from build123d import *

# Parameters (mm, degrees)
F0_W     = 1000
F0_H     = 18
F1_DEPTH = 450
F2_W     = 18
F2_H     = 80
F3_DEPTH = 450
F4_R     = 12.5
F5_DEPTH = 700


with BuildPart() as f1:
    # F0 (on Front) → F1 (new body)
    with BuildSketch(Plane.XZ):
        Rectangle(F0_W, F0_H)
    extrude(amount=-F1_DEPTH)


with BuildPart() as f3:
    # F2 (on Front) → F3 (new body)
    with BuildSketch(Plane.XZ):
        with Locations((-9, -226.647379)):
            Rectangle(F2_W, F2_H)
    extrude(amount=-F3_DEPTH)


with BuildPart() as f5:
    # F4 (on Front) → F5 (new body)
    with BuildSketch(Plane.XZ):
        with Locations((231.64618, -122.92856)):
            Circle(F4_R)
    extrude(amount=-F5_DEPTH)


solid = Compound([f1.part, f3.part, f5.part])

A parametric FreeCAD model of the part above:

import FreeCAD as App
import Part
import Sketcher


def add_polygon(sketch, points):
    """Adds a closed chain of lines whose ends are joined by coincident constraints."""
    first, n = sketch.GeometryCount, len(points)
    for a, b in zip(points, points[1:] + points[:1]):
        sketch.addGeometry(Part.LineSegment(App.Vector(*a, 0), App.Vector(*b, 0)), False)
    for i in range(n):
        sketch.addConstraint(Sketcher.Constraint("Coincident", first + i, 2, first + (i + 1) % n, 1))

doc = App.newDocument("Part")
body = doc.addObject("PartDesign::Body", "Body")

# Sketch on XZ plane
sketch1 = doc.addObject("Sketcher::SketchObject", "Sketch")
body.addObject(sketch1)
sketch1.AttachmentSupport = (doc.XZ_Plane, [""])
sketch1.MapMode = "FlatFace"
add_polygon(sketch1, [(-500, 9), (-500, -9), (500, -9), (500, 9)])  # lines 0-3
sketch1.addConstraint([
    Sketcher.Constraint("Vertical", 0),
    Sketcher.Constraint("Horizontal", 1),
    Sketcher.Constraint("Vertical", 2),
    Sketcher.Constraint("Horizontal", 3),
    Sketcher.Constraint("Symmetric", 0, 2, 2, 2, -1, 1),
    Sketcher.Constraint("DistanceX", 1, 1, 1, 2, 1000.0),
    Sketcher.Constraint("DistanceY", 0, 2, 0, 1, 18.0),
])
pad1 = doc.addObject("PartDesign::Pad", "Pad")
body.addObject(pad1)
pad1.Profile = sketch1
pad1.Length = 450
pad1.Reversed = True
body2 = doc.addObject("PartDesign::Body", "Body001")

# Sketch on XZ plane
sketch2 = doc.addObject("Sketcher::SketchObject", "Sketch001")
body2.addObject(sketch2)
sketch2.AttachmentSupport = (doc.getObject("XZ_Plane001"), [""])
sketch2.MapMode = "FlatFace"
add_polygon(sketch2, [(-18, -187), (-18, -267), (0, -267), (0, -187)])  # lines 0-3
sketch2.addConstraint([
    Sketcher.Constraint("Vertical", 0),
    Sketcher.Constraint("Horizontal", 1),
    Sketcher.Constraint("Vertical", 2),
    Sketcher.Constraint("Horizontal", 3),
    Sketcher.Constraint("PointOnObject", 1, 2, -2),
    Sketcher.Constraint("DistanceX", 1, 1, 1, 2, 18.0),
    Sketcher.Constraint("DistanceY", 0, 2, 0, 1, 80.0),
    Sketcher.Constraint("DistanceY", 0, 2, -1, 1, 266.647379),
])
pad2 = doc.addObject("PartDesign::Pad", "Pad001")
body2.addObject(pad2)
pad2.Profile = sketch2
pad2.Length = 450
pad2.Reversed = True
body3 = doc.addObject("PartDesign::Body", "Body002")

# Sketch on XZ plane
sketch3 = doc.addObject("Sketcher::SketchObject", "Sketch002")
body3.addObject(sketch3)
sketch3.AttachmentSupport = (doc.getObject("XZ_Plane002"), [""])
sketch3.MapMode = "FlatFace"
sketch3.addGeometry(Part.Circle(App.Vector(232, -123, 0), App.Vector(0, 0, 1), 12), False)
sketch3.addConstraint([
    Sketcher.Constraint("Diameter", 0, 25.0),
    Sketcher.Constraint("DistanceX", -1, 1, 0, 3, 231.64618),
    Sketcher.Constraint("DistanceY", 0, 3, -1, 1, 122.92856),
])
pad3 = doc.addObject("PartDesign::Pad", "Pad002")
body3.addObject(pad3)
pad3.Profile = sketch3
pad3.Length = 700
pad3.Reversed = True

doc.recompute()
